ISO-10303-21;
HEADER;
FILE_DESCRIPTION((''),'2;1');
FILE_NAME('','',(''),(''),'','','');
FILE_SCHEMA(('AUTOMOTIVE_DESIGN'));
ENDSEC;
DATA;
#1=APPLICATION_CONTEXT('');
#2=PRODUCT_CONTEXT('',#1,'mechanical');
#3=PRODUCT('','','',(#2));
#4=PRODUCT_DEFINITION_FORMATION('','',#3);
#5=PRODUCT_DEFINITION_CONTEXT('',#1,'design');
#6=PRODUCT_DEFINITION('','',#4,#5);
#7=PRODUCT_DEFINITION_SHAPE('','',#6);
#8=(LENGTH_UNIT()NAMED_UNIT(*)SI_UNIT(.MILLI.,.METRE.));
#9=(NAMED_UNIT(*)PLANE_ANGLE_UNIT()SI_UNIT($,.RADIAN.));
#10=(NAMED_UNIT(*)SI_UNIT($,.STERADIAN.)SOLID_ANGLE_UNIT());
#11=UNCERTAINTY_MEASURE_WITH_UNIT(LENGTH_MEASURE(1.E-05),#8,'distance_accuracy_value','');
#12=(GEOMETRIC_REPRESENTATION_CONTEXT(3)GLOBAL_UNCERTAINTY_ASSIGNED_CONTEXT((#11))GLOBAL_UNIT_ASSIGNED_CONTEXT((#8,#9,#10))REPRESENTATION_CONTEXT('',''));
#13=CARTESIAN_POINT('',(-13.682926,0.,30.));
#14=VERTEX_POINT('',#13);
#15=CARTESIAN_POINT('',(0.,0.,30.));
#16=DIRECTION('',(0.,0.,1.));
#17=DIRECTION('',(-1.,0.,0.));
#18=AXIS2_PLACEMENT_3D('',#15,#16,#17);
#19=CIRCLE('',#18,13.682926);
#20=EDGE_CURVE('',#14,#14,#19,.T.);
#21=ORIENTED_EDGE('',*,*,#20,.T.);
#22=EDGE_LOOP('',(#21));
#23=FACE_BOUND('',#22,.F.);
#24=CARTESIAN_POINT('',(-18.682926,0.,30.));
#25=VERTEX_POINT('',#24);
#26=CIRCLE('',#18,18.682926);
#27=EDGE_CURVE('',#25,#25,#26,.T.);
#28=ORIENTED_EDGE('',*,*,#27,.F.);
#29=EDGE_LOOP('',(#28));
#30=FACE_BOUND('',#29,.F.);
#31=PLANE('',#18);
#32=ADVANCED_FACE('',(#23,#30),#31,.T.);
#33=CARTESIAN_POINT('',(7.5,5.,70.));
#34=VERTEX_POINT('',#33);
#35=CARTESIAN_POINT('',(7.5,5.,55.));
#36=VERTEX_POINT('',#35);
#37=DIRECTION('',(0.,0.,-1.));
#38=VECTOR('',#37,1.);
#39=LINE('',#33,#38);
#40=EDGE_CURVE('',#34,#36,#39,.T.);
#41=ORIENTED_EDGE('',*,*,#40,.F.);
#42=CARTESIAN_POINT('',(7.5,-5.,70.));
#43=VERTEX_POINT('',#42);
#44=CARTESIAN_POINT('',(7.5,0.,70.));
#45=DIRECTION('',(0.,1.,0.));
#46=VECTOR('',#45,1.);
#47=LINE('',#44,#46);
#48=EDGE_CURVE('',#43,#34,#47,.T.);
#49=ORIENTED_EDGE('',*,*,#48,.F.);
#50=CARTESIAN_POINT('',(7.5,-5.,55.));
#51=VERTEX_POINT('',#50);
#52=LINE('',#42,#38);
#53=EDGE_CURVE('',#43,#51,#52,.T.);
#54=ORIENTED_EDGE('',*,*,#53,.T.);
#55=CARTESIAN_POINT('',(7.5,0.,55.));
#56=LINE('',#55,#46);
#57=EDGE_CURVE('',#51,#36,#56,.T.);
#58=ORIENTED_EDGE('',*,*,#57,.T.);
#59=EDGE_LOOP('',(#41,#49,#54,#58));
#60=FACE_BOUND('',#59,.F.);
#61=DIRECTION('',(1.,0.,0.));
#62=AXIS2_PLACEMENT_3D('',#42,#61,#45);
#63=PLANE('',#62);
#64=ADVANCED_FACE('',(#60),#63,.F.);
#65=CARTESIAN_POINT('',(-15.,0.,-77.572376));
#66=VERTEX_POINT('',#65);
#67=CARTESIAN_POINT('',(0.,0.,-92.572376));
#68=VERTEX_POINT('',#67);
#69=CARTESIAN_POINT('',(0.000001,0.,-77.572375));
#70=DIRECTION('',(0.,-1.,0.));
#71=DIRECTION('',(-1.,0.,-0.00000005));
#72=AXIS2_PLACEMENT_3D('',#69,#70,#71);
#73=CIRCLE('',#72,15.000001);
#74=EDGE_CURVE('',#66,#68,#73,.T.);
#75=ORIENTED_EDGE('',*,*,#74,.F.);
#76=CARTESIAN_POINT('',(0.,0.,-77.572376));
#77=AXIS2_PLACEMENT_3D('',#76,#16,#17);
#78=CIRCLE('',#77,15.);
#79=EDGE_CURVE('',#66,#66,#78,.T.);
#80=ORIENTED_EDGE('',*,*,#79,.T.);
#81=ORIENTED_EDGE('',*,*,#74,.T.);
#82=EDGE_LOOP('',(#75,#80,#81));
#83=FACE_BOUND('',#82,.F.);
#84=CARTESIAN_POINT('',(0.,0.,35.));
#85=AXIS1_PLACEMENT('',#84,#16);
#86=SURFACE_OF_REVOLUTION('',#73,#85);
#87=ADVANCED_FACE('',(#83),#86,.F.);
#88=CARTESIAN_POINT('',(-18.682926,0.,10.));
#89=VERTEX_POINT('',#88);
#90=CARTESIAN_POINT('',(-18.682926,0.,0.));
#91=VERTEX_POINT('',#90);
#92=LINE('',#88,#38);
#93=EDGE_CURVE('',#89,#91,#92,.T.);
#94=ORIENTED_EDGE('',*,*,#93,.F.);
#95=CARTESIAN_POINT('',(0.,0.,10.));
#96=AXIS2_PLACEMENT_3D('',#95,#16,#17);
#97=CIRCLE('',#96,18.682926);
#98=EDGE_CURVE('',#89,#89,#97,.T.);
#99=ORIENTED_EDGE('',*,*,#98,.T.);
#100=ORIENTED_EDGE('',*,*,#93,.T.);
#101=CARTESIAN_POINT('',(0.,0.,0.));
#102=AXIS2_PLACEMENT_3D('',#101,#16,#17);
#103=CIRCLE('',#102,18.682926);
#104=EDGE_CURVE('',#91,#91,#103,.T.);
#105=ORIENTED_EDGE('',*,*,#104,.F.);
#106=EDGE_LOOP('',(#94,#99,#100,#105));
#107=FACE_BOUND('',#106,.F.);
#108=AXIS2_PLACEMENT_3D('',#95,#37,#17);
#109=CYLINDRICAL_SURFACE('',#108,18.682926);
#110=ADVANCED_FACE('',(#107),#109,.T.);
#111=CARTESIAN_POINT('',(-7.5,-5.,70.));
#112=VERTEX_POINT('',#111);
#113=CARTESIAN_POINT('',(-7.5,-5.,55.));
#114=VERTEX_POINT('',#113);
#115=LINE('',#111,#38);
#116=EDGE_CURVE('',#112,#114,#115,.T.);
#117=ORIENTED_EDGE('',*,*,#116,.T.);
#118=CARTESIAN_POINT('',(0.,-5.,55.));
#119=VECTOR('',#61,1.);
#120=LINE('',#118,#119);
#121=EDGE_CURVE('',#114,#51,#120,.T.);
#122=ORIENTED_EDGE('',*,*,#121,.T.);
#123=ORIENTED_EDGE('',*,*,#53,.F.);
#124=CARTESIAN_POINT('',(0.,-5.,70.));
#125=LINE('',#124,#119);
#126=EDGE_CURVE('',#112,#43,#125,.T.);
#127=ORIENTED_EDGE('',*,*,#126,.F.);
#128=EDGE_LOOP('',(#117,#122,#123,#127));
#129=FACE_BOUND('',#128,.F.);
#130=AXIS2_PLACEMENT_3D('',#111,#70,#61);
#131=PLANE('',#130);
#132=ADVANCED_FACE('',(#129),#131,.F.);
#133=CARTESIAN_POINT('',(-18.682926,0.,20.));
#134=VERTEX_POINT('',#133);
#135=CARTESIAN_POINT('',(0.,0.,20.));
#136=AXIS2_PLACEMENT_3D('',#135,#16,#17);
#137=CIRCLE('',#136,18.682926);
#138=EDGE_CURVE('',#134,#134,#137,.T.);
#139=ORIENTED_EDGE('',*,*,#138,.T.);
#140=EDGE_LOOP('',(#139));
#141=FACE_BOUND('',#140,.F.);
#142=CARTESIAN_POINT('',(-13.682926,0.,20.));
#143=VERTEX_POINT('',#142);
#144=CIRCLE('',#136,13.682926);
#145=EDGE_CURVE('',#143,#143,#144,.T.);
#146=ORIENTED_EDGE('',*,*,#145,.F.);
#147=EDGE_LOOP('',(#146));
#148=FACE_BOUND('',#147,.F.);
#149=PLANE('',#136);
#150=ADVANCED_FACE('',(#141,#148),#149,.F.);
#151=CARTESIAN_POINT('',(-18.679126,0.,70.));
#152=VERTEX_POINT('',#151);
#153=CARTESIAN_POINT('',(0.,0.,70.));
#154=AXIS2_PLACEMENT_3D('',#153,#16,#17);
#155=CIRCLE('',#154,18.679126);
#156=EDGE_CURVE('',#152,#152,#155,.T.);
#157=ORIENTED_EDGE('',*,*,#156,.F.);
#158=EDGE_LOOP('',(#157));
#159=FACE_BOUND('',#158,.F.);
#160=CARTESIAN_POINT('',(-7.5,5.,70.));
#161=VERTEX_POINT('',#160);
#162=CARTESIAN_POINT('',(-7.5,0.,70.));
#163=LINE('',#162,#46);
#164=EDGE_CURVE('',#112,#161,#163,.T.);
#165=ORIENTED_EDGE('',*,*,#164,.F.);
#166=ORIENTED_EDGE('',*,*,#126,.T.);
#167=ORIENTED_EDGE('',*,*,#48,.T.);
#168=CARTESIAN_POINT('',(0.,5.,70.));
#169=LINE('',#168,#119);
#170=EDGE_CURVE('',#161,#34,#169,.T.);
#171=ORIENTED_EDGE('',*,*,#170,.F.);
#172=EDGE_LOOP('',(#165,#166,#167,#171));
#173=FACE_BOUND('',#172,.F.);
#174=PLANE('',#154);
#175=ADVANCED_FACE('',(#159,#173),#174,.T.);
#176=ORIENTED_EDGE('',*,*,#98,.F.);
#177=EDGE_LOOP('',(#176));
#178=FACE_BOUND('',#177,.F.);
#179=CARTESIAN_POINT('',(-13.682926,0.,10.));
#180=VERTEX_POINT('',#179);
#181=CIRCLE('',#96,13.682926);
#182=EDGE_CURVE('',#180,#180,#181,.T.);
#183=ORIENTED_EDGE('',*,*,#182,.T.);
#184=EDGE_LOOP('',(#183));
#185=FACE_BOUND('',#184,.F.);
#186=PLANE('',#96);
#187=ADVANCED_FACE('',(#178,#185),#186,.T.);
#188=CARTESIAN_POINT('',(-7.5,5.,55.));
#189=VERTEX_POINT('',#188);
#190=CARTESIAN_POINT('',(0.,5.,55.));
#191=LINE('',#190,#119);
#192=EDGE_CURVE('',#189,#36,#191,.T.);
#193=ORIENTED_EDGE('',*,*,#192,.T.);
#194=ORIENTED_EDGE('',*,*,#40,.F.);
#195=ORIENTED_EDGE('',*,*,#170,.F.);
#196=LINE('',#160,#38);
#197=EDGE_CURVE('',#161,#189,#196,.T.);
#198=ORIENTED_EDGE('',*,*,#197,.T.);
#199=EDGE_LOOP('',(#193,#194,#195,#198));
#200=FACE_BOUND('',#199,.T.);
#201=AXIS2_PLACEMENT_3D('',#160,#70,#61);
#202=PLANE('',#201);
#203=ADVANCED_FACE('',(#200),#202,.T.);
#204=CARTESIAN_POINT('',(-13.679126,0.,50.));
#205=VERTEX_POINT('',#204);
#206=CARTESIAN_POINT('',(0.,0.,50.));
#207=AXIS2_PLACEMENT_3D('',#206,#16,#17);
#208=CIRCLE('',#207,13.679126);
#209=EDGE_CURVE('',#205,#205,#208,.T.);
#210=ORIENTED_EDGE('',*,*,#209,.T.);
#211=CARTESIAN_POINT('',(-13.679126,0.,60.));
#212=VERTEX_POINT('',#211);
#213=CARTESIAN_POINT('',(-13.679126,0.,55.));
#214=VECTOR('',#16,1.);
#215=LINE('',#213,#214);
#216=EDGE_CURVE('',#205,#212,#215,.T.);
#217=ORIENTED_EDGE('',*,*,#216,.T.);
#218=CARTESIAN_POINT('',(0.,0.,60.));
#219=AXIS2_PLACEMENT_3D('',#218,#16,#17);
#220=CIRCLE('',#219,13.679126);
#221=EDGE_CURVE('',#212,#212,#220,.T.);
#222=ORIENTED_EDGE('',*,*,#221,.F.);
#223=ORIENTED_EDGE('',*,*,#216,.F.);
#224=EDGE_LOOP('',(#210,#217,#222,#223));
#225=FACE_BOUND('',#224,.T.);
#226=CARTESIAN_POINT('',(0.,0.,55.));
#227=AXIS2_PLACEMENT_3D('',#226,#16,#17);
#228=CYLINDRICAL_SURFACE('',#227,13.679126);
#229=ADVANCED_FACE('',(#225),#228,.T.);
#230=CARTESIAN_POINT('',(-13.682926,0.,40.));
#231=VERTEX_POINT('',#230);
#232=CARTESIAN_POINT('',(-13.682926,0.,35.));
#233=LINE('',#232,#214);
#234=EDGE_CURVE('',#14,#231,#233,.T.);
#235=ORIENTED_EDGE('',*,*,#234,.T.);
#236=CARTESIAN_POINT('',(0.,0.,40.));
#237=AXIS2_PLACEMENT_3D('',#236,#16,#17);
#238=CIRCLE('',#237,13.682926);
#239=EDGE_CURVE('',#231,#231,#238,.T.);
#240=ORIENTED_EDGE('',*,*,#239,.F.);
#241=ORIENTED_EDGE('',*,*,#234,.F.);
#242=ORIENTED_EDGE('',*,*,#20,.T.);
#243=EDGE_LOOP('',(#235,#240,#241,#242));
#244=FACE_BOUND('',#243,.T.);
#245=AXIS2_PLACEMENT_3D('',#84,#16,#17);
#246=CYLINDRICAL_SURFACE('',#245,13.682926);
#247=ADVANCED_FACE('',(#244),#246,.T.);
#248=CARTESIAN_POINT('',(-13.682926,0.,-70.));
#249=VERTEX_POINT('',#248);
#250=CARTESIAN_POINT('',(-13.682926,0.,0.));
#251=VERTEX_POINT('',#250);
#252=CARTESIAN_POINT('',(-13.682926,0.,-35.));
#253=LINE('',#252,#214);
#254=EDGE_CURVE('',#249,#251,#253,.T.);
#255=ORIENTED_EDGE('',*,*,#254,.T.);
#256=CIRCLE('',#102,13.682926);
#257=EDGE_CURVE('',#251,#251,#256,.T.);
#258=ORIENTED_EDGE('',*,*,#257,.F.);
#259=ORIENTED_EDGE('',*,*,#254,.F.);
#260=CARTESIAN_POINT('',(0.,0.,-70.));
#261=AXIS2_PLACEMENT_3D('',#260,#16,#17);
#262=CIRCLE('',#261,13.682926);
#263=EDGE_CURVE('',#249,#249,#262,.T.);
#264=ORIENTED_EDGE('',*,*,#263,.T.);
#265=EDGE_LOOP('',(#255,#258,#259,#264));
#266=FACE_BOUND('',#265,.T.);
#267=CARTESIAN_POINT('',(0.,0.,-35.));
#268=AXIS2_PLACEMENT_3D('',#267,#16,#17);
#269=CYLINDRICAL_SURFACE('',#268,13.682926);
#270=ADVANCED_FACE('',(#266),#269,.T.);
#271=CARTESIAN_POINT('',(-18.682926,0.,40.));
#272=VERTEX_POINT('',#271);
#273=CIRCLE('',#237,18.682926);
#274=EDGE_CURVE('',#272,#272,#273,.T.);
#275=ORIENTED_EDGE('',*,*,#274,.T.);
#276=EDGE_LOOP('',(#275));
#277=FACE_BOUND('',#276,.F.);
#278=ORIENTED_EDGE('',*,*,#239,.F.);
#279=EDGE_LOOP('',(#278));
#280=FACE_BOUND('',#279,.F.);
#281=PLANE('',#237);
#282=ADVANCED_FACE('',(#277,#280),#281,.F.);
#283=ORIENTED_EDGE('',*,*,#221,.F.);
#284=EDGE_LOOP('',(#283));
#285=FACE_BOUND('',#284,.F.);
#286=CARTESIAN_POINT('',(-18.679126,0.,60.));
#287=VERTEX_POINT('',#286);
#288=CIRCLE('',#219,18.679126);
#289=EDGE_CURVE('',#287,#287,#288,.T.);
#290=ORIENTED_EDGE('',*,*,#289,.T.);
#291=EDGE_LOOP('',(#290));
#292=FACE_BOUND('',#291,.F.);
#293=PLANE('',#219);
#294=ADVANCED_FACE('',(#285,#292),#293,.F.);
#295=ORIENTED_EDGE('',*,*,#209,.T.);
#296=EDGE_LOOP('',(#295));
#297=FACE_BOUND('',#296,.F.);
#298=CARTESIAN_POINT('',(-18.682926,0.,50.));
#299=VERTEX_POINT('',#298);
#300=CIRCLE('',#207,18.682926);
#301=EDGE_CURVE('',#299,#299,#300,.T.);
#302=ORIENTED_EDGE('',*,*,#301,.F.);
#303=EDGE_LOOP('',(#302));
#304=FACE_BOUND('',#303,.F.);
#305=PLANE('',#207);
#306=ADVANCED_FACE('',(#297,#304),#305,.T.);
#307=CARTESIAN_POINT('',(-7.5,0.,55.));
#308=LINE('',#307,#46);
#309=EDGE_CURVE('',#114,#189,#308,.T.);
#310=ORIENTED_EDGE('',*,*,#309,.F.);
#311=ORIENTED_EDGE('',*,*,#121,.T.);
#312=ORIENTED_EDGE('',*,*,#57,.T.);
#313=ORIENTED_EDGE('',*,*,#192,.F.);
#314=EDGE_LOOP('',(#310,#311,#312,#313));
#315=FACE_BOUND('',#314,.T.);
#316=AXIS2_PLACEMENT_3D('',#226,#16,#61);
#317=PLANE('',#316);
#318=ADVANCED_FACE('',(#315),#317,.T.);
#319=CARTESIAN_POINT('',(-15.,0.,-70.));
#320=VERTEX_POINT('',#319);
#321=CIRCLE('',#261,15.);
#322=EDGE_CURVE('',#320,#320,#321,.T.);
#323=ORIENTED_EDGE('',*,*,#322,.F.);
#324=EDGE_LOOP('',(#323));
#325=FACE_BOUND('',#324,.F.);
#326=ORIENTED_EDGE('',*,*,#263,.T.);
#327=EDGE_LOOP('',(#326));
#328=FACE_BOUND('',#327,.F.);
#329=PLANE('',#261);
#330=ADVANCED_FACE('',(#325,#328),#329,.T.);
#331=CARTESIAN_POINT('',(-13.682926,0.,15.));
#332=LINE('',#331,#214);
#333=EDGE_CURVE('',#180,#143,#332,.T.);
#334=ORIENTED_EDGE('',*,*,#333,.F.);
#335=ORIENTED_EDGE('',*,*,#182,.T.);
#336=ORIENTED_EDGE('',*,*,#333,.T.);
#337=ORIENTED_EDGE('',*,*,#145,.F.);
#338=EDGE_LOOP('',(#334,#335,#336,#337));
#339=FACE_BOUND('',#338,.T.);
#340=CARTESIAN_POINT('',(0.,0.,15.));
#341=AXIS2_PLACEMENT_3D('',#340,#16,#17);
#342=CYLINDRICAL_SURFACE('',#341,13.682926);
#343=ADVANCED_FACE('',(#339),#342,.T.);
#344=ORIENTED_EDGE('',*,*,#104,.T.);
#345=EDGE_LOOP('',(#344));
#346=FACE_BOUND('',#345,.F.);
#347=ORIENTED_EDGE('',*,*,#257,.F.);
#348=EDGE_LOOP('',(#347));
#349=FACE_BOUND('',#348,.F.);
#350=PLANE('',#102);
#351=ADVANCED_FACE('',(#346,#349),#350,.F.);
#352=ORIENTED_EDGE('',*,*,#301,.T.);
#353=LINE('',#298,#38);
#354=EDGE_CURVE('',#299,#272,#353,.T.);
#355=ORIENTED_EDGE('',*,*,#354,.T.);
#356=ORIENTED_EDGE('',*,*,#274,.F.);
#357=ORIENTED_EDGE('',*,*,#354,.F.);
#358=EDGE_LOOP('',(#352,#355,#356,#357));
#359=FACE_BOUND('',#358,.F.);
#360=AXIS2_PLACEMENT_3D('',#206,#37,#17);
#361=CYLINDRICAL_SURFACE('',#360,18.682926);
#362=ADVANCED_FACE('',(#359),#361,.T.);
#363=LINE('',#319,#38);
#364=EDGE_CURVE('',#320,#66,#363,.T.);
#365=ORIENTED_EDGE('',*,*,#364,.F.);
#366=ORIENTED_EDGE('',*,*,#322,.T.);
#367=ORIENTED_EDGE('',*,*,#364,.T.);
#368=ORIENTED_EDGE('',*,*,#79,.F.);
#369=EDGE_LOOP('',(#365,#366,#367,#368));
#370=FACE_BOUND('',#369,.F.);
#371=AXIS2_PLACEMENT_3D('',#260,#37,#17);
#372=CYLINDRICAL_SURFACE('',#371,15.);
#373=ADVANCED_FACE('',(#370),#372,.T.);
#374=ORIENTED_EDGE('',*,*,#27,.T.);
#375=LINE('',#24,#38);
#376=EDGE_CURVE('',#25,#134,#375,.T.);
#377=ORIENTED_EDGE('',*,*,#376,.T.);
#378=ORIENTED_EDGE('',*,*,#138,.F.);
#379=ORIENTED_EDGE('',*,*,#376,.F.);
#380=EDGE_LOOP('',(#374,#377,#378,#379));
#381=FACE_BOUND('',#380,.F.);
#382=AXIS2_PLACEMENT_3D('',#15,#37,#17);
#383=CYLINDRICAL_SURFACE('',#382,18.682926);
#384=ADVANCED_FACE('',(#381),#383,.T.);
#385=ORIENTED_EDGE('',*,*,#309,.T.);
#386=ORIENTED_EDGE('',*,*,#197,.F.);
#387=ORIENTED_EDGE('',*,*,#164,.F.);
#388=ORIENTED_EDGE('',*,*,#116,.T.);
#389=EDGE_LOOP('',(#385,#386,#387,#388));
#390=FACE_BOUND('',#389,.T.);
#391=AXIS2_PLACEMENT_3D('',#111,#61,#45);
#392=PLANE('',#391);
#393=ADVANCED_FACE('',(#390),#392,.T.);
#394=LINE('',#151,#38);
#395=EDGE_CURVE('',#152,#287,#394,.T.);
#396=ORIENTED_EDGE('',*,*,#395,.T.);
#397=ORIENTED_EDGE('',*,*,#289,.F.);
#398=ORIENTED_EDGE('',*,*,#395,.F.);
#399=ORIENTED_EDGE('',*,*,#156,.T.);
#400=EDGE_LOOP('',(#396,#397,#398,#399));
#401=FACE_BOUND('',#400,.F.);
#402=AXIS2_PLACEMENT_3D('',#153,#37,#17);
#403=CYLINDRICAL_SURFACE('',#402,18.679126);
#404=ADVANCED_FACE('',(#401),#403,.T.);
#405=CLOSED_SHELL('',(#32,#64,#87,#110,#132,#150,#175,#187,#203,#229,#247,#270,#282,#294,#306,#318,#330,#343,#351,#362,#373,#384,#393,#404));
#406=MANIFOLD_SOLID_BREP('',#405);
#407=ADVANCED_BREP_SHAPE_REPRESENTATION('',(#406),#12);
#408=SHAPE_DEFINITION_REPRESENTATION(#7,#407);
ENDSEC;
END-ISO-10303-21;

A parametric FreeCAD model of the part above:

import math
import FreeCAD as App
import Part
import Sketcher
from FreeCAD import Vector


def add_polygon(sketch, points):
    """Adds a closed chain of lines whose ends are joined by coincident constraints."""
    first, n = sketch.GeometryCount, len(points)
    for a, b in zip(points, points[1:] + points[:1]):
        sketch.addGeometry(Part.LineSegment(App.Vector(*a, 0), App.Vector(*b, 0)), False)
    for i in range(n):
        sketch.addConstraint(Sketcher.Constraint("Coincident", first + i, 2, first + (i + 1) % n, 1))

doc = App.newDocument("Part")
body = doc.addObject("PartDesign::Body", "Body")

# Sketch on XZ plane
sketch1 = body.newObject("Sketcher::SketchObject", "Sketch")
sketch1.AttachmentSupport = (doc.getObject("XZ_Plane"), [""])
sketch1.MapMode = "FlatFace"
sketch1.addGeometry([
    Part.LineSegment(Vector(0, 70, 0), Vector(-18.679126, 70, 0)),  # 0
    Part.LineSegment(Vector(-18.679126, 70, 0), Vector(-18.679126, 60, 0)),  # 1
    Part.LineSegment(Vector(-18.679126, 60, 0), Vector(-13.679126, 60, 0)),  # 2
    Part.LineSegment(Vector(-13.679126, 60, 0), Vector(-13.679126, 50, 0)),  # 3
    Part.LineSegment(Vector(-13.679126, 50, 0), Vector(-18.682926, 50, 0)),  # 4
    Part.LineSegment(Vector(-18.682926, 50, 0), Vector(-18.682926, 40, 0)),  # 5
    Part.LineSegment(Vector(-18.682926, 40, 0), Vector(-13.682926, 40, 0)),  # 6
    Part.LineSegment(Vector(-13.682926, 40, 0), Vector(-13.682926, 30, 0)),  # 7
    Part.LineSegment(Vector(-13.682926, 30, 0), Vector(-18.682926, 30, 0)),  # 8
    Part.LineSegment(Vector(-18.682926, 30, 0), Vector(-18.682926, 20, 0)),  # 9
    Part.LineSegment(Vector(-18.682926, 20, 0), Vector(-13.682926, 20, 0)),  # 10
    Part.LineSegment(Vector(-13.682926, 20, 0), Vector(-13.682926, 10, 0)),  # 11
    Part.LineSegment(Vector(-13.682926, 10, 0), Vector(-18.682926, 10, 0)),  # 12
    Part.LineSegment(Vector(-18.682926, 10, 0), Vector(-18.682926, 0, 0)),  # 13
    Part.LineSegment(Vector(-18.682926, 0, 0), Vector(-13.682926, 0, 0)),  # 14
    Part.LineSegment(Vector(-13.682926, 0, 0), Vector(-13.682926, -70, 0)),  # 15
    Part.LineSegment(Vector(-13.682926, -70, 0), Vector(-15, -70, 0)),  # 16
    Part.LineSegment(Vector(-15, -70, 0), Vector(-15, -77.572376, 0)),  # 17
    Part.ArcOfCircle(Part.Circle(Vector(0.000001, -77.572375, 0), Vector(0, 0, 1), 15.000001), math.radians(-179.999997), math.radians(-90.000003)),  # 18
    Part.LineSegment(Vector(0, -92.572376, 0), Vector(0, 70, 0)),  # 19
], False)
sketch1.addConstraint([
    Sketcher.Constraint("Coincident", 0, 2, 1, 1),
    Sketcher.Constraint("Coincident", 1, 2, 2, 1),
    Sketcher.Constraint("Coincident", 2, 2, 3, 1),
    Sketcher.Constraint("Coincident", 3, 2, 4, 1),
    Sketcher.Constraint("Coincident", 4, 2, 5, 1),
    Sketcher.Constraint("Coincident", 5, 2, 6, 1),
    Sketcher.Constraint("Coincident", 6, 2, 7, 1),
    Sketcher.Constraint("Coincident", 7, 2, 8, 1),
    Sketcher.Constraint("Coincident", 8, 2, 9, 1),
    Sketcher.Constraint("Coincident", 9, 2, 10, 1),
    Sketcher.Constraint("Coincident", 10, 2, 11, 1),
    Sketcher.Constraint("Coincident", 11, 2, 12, 1),
    Sketcher.Constraint("Coincident", 12, 2, 13, 1),
    Sketcher.Constraint("Coincident", 13, 2, 14, 1),
    Sketcher.Constraint("Coincident", 14, 2, 15, 1),
    Sketcher.Constraint("Coincident", 15, 2, 16, 1),
    Sketcher.Constraint("Coincident", 16, 2, 17, 1),
    Sketcher.Constraint("Tangent", 17, 2, 18, 1),
    Sketcher.Constraint("Coincident", 18, 2, 19, 1),
    Sketcher.Constraint("Coincident", 19, 2, 0, 1),
    Sketcher.Constraint("Horizontal", 0),
    Sketcher.Constraint("Vertical", 1),
    Sketcher.Constraint("Horizontal", 2),
    Sketcher.Constraint("Vertical", 3),
    Sketcher.Constraint("Horizontal", 4),
    Sketcher.Constraint("Vertical", 5),
    Sketcher.Constraint("Horizontal", 6),
    Sketcher.Constraint("Vertical", 7),
    Sketcher.Constraint("Horizontal", 8),
    Sketcher.Constraint("Vertical", 9),
    Sketcher.Constraint("Horizontal", 10),
    Sketcher.Constraint("Vertical", 11),
    Sketcher.Constraint("Horizontal", 12),
    Sketcher.Constraint("Vertical", 13),
    Sketcher.Constraint("Horizontal", 14),
    Sketcher.Constraint("Vertical", 15),
    Sketcher.Constraint("Horizontal", 16),
    Sketcher.Constraint("Vertical", 17),
    Sketcher.Constraint("Vertical", 19),
    Sketcher.Constraint("PointOnObject", 18, 3, -2),
    Sketcher.Constraint("PointOnObject", 13, 2, -1),
    Sketcher.Constraint("PointOnObject", 18, 2, -2),
    Sketcher.Constraint("Vertical", 5, 2, 8, 2),
    Sketcher.Constraint("Vertical", 7, 2, 10, 2),
    Sketcher.Constraint("Vertical", 9, 2, 12, 2),
    Sketcher.Constraint("Vertical", 11, 2, 14, 2),
    Sketcher.Constraint("Equal", 2, 6),
    Sketcher.Constraint("Equal", 1, 3),
    Sketcher.Constraint("Equal", 3, 5),
    Sketcher.Constraint("Equal", 5, 7),
    Sketcher.Constraint("Equal", 7, 9),
    Sketcher.Constraint("Equal", 9, 11),
    Sketcher.Constraint("Equal", 11, 13),
    Sketcher.Constraint("Radius", 18, 15.000001),
    Sketcher.Constraint("DistanceX", 2, 1, 2, 2, 5.0),
    Sketcher.Constraint("DistanceY", 1, 2, 1, 1, 10.0),
    Sketcher.Constraint("DistanceY", 15, 2, 15, 1, 70.0),
    Sketcher.Constraint("DistanceX", 4, 2, 4, 1, 5.0038),
    Sketcher.Constraint("DistanceX", 0, 2, 0, 1, 18.679126),
    Sketcher.Constraint("DistanceY", 17, 2, 17, 1, 7.572376),
])
revolution = body.newObject("PartDesign::Revolution", "Revolution")
revolution.Profile = sketch1
revolution.ReferenceAxis = (sketch1, ["V_Axis"])
revolution.Angle = 360

# Sketch on XY plane
sketch2 = body.newObject("Sketcher::SketchObject", "Sketch001")
sketch2.AttachmentSupport = (doc.getObject("XY_Plane"), [""])
sketch2.MapMode = "FlatFace"
sketch2.AttachmentOffset = App.Placement(Vector(0, 0, 70), App.Rotation())
add_polygon(sketch2, [(-7.5, 5), (-7.5, -5), (7.5, -5), (7.5, 5)])  # lines 0-3
sketch2.addConstraint([
    Sketcher.Constraint("Vertical", 0),
    Sketcher.Constraint("Horizontal", 1),
    Sketcher.Constraint("Vertical", 2),
    Sketcher.Constraint("Horizontal", 3),
    Sketcher.Constraint("Symmetric", 0, 2, 2, 2, -1, 1),
    Sketcher.Constraint("DistanceX", 1, 1, 1, 2, 15.0),
    Sketcher.Constraint("DistanceY", 0, 2, 0, 1, 10.0),
])
pocket1 = body.newObject("PartDesign::Pocket", "Pocket")
pocket1.Profile = sketch2
pocket1.Length = 15

doc.recompute()
